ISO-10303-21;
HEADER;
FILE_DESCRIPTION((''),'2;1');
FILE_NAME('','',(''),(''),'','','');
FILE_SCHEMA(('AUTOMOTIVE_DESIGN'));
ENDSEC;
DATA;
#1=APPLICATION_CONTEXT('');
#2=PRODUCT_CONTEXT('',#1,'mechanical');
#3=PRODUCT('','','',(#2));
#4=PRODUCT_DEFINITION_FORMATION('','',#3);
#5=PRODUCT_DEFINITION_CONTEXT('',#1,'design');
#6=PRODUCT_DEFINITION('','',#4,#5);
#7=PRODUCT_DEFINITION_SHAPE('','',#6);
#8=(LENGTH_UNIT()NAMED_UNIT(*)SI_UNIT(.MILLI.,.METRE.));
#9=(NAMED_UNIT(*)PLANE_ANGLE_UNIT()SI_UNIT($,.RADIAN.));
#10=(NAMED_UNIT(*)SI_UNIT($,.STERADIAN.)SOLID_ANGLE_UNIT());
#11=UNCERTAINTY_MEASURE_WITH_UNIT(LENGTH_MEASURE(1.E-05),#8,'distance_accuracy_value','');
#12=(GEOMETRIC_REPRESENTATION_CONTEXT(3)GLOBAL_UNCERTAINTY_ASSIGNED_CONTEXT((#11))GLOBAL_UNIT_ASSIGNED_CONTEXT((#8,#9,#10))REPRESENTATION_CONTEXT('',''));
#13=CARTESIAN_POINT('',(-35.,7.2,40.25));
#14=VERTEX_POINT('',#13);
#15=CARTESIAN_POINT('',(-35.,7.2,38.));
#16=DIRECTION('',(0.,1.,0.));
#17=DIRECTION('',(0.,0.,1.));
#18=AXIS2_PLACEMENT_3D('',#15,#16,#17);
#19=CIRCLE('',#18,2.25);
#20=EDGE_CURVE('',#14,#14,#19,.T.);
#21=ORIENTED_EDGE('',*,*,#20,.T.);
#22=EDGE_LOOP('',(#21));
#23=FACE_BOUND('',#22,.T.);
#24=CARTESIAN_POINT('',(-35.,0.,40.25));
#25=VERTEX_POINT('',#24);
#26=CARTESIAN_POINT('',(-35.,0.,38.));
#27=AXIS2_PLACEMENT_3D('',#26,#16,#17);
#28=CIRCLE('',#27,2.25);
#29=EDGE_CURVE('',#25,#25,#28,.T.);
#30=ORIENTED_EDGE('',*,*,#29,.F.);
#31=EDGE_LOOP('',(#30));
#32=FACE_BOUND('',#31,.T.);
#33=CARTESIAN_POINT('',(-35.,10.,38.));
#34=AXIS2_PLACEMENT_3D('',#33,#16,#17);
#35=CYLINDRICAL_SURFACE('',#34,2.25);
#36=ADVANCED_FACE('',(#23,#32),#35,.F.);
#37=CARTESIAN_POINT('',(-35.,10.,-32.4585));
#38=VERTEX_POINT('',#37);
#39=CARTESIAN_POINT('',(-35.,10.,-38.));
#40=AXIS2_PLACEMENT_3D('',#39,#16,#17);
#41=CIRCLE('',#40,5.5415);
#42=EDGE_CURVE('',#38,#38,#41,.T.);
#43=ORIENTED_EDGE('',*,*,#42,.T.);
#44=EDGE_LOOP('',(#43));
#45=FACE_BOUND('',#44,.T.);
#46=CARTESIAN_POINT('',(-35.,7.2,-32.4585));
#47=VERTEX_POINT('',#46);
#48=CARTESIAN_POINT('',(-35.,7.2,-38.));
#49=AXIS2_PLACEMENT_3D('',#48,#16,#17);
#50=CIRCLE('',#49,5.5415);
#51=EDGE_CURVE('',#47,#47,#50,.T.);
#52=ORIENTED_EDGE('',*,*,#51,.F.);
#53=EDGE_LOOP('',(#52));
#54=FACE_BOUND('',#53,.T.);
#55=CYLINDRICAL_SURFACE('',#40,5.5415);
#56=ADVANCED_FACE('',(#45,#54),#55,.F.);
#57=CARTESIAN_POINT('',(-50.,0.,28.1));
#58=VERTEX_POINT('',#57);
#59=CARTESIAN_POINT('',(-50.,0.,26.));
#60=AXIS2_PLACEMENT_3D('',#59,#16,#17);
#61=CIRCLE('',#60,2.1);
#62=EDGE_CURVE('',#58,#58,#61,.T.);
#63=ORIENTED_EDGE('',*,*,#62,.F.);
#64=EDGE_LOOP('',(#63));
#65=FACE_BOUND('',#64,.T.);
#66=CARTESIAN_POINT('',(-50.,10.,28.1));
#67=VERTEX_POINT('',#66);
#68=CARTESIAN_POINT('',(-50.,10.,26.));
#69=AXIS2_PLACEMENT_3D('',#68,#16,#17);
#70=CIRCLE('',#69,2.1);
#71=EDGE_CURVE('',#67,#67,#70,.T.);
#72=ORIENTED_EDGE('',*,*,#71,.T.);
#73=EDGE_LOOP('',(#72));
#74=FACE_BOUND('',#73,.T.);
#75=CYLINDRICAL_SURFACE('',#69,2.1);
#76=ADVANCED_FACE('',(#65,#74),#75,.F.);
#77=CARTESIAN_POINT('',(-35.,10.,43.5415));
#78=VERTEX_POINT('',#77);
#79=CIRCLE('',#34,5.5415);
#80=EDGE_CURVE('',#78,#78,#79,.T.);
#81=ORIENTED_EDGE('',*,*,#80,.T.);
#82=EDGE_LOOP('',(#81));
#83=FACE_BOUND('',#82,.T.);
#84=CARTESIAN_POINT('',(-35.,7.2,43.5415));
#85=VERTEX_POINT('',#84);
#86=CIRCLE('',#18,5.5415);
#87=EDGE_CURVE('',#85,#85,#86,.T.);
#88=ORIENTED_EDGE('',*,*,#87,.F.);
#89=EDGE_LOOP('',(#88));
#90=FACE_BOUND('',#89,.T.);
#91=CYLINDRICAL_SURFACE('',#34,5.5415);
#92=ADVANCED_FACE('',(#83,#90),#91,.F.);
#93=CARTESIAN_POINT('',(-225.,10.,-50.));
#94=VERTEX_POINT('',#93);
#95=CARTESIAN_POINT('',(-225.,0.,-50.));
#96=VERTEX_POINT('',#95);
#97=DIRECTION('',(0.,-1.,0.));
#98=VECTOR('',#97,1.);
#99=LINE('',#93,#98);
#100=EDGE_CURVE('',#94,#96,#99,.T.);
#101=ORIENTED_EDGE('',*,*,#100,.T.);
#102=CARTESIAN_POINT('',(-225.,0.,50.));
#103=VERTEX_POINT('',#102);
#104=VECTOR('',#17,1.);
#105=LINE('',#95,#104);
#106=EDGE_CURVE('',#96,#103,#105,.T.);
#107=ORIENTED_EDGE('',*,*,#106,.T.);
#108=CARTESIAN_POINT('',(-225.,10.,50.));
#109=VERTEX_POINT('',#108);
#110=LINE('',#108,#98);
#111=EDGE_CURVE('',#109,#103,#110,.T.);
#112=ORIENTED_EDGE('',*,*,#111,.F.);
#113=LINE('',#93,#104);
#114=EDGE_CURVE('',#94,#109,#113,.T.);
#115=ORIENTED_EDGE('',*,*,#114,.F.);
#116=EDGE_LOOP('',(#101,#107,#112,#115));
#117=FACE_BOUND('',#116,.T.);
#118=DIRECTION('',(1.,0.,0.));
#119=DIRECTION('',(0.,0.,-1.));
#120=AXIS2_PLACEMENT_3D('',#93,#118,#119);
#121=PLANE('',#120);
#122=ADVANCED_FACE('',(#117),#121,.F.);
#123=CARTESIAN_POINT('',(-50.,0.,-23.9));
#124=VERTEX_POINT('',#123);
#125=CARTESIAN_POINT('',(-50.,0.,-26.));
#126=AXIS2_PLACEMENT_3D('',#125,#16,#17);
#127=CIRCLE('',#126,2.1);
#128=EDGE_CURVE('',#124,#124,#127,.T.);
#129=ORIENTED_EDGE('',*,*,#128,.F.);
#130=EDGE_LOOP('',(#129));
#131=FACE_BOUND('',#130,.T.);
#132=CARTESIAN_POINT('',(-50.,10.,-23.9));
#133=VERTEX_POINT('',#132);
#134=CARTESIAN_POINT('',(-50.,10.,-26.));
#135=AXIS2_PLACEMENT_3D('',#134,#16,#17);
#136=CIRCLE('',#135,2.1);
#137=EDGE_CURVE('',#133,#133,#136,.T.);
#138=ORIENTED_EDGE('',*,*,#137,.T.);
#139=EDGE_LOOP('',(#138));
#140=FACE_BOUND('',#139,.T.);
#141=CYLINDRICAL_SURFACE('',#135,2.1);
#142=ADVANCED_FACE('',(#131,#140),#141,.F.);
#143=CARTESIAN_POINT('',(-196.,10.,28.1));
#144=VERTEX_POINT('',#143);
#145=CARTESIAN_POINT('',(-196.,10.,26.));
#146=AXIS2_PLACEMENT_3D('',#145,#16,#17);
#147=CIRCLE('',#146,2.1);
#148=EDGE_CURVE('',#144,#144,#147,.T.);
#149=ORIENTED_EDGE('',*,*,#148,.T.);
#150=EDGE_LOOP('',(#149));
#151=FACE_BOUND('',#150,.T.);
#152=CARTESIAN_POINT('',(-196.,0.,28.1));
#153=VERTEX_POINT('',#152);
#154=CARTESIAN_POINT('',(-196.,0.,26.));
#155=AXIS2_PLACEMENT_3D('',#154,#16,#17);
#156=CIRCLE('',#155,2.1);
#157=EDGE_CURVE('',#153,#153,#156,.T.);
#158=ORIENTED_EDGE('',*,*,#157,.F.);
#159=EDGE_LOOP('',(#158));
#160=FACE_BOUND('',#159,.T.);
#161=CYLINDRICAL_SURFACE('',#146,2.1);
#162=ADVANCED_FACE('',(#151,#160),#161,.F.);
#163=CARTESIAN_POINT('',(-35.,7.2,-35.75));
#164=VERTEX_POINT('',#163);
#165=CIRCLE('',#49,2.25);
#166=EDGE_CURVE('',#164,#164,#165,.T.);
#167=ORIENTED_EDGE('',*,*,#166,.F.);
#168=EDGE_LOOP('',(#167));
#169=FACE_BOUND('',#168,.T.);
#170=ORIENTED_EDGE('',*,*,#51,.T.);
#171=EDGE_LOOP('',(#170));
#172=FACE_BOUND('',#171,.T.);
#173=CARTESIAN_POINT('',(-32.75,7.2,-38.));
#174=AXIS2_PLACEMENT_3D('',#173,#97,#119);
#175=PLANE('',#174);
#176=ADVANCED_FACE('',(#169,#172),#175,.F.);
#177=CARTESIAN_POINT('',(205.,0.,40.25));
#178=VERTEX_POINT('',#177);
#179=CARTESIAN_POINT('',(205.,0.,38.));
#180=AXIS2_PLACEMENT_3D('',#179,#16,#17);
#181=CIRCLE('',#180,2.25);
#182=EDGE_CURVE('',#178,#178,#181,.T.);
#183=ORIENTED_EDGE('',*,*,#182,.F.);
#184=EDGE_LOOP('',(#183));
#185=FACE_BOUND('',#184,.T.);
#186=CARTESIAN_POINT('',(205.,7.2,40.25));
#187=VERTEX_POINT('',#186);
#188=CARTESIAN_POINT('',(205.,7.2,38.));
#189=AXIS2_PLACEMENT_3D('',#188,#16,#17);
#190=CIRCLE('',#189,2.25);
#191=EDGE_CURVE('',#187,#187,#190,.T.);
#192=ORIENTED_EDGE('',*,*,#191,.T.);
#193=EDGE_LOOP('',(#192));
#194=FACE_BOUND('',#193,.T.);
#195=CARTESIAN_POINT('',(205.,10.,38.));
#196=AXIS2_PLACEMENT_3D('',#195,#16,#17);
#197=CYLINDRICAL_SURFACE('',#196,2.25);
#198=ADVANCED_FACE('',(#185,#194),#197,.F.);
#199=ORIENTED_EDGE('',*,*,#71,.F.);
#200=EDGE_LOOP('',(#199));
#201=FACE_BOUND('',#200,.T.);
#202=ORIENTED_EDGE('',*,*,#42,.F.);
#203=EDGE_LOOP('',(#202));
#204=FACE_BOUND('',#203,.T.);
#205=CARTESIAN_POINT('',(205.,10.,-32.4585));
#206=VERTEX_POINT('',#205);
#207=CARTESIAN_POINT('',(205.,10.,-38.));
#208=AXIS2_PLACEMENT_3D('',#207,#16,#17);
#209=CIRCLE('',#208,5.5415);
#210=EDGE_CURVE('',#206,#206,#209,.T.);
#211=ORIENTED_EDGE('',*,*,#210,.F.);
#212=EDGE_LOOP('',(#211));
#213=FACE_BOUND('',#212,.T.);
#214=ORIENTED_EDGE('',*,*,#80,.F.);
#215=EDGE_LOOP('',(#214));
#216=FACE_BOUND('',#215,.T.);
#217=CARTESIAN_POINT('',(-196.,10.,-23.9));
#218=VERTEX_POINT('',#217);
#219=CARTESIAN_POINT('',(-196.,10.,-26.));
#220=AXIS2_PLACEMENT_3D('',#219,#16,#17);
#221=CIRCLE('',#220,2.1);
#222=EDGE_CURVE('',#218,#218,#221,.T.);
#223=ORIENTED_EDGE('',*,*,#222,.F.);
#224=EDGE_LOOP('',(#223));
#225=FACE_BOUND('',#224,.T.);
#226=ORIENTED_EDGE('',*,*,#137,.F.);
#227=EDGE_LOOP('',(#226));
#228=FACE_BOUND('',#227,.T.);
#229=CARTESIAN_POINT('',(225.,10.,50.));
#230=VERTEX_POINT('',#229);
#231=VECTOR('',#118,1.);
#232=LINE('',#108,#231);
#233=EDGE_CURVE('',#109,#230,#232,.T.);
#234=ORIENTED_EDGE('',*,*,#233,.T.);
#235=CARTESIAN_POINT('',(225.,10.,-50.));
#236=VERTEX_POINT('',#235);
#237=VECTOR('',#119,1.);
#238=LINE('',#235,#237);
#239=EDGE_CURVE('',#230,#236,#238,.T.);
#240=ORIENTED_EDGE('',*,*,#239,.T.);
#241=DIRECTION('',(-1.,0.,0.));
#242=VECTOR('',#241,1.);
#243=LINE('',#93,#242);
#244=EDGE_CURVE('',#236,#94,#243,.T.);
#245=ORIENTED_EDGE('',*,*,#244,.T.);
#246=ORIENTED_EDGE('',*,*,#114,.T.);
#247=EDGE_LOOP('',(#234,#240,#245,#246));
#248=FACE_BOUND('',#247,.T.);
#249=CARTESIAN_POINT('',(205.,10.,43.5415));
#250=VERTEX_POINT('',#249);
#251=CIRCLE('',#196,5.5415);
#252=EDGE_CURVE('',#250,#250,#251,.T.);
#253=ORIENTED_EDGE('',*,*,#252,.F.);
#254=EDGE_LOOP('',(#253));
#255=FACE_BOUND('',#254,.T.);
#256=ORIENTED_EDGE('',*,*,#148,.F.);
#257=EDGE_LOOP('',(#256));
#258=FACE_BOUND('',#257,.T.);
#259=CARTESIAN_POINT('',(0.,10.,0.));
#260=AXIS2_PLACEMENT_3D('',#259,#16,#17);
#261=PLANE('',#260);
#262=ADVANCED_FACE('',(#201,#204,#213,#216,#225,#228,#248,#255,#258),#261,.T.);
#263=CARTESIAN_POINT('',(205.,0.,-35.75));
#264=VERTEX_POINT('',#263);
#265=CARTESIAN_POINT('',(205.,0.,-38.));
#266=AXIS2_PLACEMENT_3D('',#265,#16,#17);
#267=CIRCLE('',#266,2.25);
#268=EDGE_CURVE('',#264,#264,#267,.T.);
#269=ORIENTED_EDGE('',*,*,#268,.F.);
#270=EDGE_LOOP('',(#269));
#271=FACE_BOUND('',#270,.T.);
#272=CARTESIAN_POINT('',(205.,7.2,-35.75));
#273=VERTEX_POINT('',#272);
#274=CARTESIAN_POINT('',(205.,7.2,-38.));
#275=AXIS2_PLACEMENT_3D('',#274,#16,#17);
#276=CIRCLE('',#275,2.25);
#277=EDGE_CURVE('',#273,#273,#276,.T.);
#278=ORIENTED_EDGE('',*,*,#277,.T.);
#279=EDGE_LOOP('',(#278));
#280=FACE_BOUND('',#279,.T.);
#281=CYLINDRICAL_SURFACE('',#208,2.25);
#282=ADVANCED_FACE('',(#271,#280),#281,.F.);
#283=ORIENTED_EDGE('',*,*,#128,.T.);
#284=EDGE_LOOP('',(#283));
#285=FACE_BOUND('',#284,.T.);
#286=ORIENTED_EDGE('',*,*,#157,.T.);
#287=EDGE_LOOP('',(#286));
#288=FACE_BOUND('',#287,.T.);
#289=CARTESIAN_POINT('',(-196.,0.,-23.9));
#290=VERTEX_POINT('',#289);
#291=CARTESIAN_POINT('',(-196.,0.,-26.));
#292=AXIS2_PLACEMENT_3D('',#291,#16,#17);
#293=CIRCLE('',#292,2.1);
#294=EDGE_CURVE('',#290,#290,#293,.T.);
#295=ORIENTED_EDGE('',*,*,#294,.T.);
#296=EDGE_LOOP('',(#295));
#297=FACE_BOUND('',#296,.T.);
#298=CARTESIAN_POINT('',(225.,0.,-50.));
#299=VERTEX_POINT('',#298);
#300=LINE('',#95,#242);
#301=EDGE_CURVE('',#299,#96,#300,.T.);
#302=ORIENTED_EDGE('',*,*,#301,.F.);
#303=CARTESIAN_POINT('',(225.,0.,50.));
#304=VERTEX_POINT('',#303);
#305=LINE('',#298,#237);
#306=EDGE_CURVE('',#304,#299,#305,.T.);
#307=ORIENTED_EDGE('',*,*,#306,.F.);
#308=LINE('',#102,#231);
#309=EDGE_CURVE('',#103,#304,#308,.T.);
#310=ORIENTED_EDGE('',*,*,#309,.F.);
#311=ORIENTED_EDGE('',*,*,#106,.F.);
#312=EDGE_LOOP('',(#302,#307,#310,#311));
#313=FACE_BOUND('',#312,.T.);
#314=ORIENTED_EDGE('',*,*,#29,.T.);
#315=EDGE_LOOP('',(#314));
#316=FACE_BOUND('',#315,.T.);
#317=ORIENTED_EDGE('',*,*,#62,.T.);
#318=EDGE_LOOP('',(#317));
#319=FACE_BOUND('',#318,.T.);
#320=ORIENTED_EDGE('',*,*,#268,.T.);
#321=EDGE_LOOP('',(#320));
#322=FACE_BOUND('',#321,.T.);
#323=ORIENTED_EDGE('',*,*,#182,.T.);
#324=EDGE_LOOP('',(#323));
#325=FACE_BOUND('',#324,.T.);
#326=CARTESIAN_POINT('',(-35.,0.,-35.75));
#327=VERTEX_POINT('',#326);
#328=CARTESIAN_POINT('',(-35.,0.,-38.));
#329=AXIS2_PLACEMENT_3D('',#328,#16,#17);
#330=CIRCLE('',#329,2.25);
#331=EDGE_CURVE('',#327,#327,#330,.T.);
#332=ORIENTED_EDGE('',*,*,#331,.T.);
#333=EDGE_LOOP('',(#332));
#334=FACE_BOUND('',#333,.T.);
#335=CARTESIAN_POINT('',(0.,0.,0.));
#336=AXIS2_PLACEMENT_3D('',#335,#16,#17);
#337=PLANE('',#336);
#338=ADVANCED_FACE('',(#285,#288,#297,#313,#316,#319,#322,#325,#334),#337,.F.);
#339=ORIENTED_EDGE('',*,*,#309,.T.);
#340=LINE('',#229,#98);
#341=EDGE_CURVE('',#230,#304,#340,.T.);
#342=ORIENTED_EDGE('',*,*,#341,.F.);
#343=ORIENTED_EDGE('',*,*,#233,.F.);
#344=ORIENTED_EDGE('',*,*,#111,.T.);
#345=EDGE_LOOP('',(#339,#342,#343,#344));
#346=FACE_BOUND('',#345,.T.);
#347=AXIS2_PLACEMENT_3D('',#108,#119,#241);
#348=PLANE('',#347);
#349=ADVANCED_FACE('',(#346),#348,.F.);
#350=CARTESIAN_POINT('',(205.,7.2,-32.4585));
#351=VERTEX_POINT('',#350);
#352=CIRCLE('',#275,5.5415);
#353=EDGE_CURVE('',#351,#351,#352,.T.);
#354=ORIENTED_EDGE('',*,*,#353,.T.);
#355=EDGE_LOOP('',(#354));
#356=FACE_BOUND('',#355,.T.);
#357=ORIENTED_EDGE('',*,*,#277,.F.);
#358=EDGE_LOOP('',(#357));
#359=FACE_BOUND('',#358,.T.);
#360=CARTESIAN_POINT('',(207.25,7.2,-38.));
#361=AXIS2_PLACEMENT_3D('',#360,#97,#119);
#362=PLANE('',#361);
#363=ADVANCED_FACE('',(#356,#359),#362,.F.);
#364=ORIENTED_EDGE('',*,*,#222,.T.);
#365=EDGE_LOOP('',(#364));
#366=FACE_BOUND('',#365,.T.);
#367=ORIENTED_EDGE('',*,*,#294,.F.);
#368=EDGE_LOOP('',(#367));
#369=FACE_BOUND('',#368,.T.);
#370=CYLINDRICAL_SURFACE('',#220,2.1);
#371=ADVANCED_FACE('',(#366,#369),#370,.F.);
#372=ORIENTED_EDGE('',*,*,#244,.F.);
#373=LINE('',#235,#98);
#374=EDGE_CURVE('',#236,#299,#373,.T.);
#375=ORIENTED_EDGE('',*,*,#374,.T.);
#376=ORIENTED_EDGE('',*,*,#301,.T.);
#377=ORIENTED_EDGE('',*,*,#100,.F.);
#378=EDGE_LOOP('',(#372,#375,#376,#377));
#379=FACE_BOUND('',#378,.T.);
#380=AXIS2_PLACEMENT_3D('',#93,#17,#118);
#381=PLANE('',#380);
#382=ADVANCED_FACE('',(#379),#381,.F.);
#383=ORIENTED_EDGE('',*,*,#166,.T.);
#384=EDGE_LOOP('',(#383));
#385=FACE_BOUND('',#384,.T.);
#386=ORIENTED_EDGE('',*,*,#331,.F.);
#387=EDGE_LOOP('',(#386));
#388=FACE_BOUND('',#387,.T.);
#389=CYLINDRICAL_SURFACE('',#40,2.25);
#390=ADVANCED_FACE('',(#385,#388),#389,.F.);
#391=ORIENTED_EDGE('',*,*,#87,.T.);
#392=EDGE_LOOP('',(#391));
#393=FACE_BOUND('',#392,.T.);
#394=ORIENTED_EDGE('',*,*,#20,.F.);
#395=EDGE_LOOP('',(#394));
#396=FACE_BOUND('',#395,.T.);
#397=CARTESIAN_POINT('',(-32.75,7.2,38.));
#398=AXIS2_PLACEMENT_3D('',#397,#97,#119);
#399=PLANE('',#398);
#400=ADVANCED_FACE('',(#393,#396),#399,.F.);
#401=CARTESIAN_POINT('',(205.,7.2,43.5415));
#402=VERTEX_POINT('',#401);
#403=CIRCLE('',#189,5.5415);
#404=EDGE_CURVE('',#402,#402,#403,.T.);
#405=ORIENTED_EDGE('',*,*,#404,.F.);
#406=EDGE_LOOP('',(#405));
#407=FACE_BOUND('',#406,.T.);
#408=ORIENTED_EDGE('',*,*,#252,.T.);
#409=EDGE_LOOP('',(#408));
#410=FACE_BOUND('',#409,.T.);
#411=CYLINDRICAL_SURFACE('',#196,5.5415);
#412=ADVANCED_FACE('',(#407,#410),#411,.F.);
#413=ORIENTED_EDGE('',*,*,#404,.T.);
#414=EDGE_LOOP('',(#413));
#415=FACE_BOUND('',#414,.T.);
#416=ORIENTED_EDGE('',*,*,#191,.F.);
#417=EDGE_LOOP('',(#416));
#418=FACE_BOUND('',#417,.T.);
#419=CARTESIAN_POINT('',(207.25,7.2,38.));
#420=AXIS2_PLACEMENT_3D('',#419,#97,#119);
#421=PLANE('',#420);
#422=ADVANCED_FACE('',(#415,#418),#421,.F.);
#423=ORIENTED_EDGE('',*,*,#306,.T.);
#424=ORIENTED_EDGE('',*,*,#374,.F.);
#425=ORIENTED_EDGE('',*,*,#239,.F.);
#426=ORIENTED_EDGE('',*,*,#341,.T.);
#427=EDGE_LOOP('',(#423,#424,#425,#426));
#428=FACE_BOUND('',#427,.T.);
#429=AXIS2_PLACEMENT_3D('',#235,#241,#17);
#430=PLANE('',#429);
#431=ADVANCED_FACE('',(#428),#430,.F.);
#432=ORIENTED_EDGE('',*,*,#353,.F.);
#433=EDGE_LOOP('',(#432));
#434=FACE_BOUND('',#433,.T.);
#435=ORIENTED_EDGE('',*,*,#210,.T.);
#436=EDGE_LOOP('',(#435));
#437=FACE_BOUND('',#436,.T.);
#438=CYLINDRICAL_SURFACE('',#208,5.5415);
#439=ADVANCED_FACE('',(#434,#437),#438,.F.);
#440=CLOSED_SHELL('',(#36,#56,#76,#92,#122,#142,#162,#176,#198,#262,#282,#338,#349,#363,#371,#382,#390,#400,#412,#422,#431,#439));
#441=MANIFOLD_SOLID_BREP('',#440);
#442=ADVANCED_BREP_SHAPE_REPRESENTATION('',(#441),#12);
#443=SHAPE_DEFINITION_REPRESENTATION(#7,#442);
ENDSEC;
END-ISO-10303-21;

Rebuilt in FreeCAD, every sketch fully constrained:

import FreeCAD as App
import Part
import Sketcher
Q = App.Units.Quantity


def add_polygon(sketch, points):
    """Adds a closed chain of lines whose ends are joined by coincident constraints."""
    first, n = sketch.GeometryCount, len(points)
    for a, b in zip(points, points[1:] + points[:1]):
        sketch.addGeometry(Part.LineSegment(App.Vector(*a, 0), App.Vector(*b, 0)), False)
    for i in range(n):
        sketch.addConstraint(Sketcher.Constraint("Coincident", first + i, 2, first + (i + 1) % n, 1))

doc = App.newDocument("Part")
body = doc.addObject("PartDesign::Body", "Body")

# Sketch on XZ plane
sketch1 = body.newObject("Sketcher::SketchObject", "Sketch")
sketch1.AttachmentSupport = (doc.getObject("XZ_Plane"), [""])
sketch1.MapMode = "FlatFace"
add_polygon(sketch1, [(-225, -50), (-225, 50), (225, 50), (225, -50)])  # lines 0-3
sketch1.addConstraint(Sketcher.Constraint("Vertical", 0))
sketch1.addConstraint(Sketcher.Constraint("Horizontal", 1))
sketch1.addConstraint(Sketcher.Constraint("Vertical", 2))
sketch1.addConstraint(Sketcher.Constraint("Horizontal", 3))
sketch1.addConstraint(Sketcher.Constraint("Symmetric", 0, 2, 2, 2, -1, 1))
sketch1.addConstraint(Sketcher.Constraint("DistanceX", 1, 1, 1, 2, Q("450 mm")))
sketch1.addConstraint(Sketcher.Constraint("DistanceY", 0, 1, 0, 2, Q("100 mm")))
pad1 = body.newObject("PartDesign::Pad", "Pad")
pad1.Profile = sketch1
pad1.Length = 10
pad1.Reversed = True

# Sketch on XZ plane
sketch2 = body.newObject("Sketcher::SketchObject", "Sketch001")
sketch2.AttachmentSupport = (doc.getObject("XZ_Plane"), [""])
sketch2.MapMode = "FlatFace"
sketch2.AttachmentOffset = App.Placement(App.Vector(0, 0, -10), App.Rotation())
sketch2.addGeometry(Part.Circle(App.Vector(205, 38, 0), App.Vector(0, 0, 1), 2.2), False)
sketch2.addGeometry(Part.Circle(App.Vector(205, -38, 0), App.Vector(0, 0, 1), 2.2), False)
sketch2.addGeometry(Part.Circle(App.Vector(-35, -38, 0), App.Vector(0, 0, 1), 2.2), False)
sketch2.addGeometry(Part.Circle(App.Vector(-35, 38, 0), App.Vector(0, 0, 1), 2.2), False)
sketch2.addConstraint(Sketcher.Constraint("Equal", 0, 1))
sketch2.addConstraint(Sketcher.Constraint("Equal", 1, 2))
sketch2.addConstraint(Sketcher.Constraint("Equal", 2, 3))
sketch2.addConstraint(Sketcher.Constraint("Symmetric", 0, 3, 1, 3, -1))
sketch2.addConstraint(Sketcher.Constraint("Symmetric", 2, 3, 3, 3, -1))
sketch2.addConstraint(Sketcher.Constraint("Horizontal", 1, 3, 2, 3))
sketch2.addConstraint(Sketcher.Constraint("Diameter", 0, Q("4.5 mm")))
sketch2.addConstraint(Sketcher.Constraint("DistanceX", -1, 1, 0, 3, Q("205 mm")))
sketch2.addConstraint(Sketcher.Constraint("DistanceY", -1, 1, 0, 3, Q("38 mm")))
sketch2.addConstraint(Sketcher.Constraint("DistanceX", 2, 3, -1, 1, Q("35 mm")))
doc.recompute()
hole = body.newObject("PartDesign::Hole", "Hole")
hole.Profile = sketch2
hole.ThreadType = "None"
hole.Diameter = 4.5
hole.DepthType = "ThroughAll"
hole.HoleCutType = "Counterbore"
hole.HoleCutDiameter = 11.083
hole.HoleCutDepth = 2.8
hole.Reversed = True

# Sketch on XZ plane
sketch3 = body.newObject("Sketcher::SketchObject", "Sketch002")
sketch3.AttachmentSupport = (doc.getObject("XZ_Plane"), [""])
sketch3.MapMode = "FlatFace"
sketch3.AttachmentOffset = App.Placement(App.Vector(0, 0, -10), App.Rotation())
sketch3.addGeometry(Part.Circle(App.Vector(-50, -26, 0), App.Vector(0, 0, 1), 2.1), False)
sketch3.addGeometry(Part.Circle(App.Vector(-50, 26, 0), App.Vector(0, 0, 1), 2.1), False)
sketch3.addGeometry(Part.Circle(App.Vector(-196, 26, 0), App.Vector(0, 0, 1), 2.1), False)
sketch3.addGeometry(Part.Circle(App.Vector(-196, -26, 0), App.Vector(0, 0, 1), 2.1), False)
sketch3.addConstraint(Sketcher.Constraint("Equal", 0, 1))
sketch3.addConstraint(Sketcher.Constraint("Equal", 1, 2))
sketch3.addConstraint(Sketcher.Constraint("Equal", 2, 3))
sketch3.addConstraint(Sketcher.Constraint("Symmetric", 0, 3, 1, 3, -1))
sketch3.addConstraint(Sketcher.Constraint("Symmetric", 2, 3, 3, 3, -1))
sketch3.addConstraint(Sketcher.Constraint("Horizontal", 1, 3, 2, 3))
sketch3.addConstraint(Sketcher.Constraint("Diameter", 0, Q("4.2 mm")))
sketch3.addConstraint(Sketcher.Constraint("DistanceX", 0, 3, -1, 1, Q("50 mm")))
sketch3.addConstraint(Sketcher.Constraint("DistanceY", 0, 3, -1, 1, Q("26 mm")))
sketch3.addConstraint(Sketcher.Constraint("DistanceX", 2, 3, -1, 1, Q("196 mm")))
doc.recompute()
hole2 = body.newObject("PartDesign::Hole", "Hole001")
hole2.Profile = sketch3
hole2.ThreadType = "None"
hole2.Diameter = 4.2
hole2.DepthType = "ThroughAll"
hole2.Reversed = True

doc.recompute()
